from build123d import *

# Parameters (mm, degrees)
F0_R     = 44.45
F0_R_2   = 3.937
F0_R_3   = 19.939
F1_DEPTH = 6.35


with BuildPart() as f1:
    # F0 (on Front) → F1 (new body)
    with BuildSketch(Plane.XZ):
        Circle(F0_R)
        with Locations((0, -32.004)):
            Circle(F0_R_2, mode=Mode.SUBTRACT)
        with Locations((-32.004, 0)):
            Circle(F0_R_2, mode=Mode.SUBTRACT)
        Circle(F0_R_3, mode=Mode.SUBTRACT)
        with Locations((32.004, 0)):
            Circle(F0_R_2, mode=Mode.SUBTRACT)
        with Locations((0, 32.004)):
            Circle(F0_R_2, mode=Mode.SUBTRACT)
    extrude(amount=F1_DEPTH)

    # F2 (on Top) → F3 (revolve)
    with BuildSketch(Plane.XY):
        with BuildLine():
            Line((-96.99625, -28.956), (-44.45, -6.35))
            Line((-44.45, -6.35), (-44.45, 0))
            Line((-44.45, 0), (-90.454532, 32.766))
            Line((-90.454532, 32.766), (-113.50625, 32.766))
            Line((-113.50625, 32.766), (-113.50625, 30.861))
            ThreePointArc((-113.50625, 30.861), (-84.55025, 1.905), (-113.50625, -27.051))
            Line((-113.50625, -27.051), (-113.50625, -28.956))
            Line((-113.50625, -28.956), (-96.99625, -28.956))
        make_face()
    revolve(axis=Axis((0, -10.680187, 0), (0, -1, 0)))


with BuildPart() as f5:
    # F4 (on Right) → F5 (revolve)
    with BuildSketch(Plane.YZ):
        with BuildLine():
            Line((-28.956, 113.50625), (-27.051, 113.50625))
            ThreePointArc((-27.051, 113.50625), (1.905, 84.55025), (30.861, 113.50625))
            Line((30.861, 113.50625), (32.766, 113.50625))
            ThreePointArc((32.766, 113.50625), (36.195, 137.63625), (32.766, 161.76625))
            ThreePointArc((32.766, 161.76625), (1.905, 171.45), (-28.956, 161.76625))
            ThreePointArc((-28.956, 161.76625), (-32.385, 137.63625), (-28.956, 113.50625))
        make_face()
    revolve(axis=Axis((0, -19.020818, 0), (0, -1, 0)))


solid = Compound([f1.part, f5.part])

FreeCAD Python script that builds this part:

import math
import FreeCAD as App
import Part
import Sketcher
Q = App.Units.Quantity

doc = App.newDocument("Part")
body = doc.addObject("PartDesign::Body", "Body")

sketch1 = body.newObject("Sketcher::SketchObject", "Sketch")
sketch1.AttachmentSupport = (doc.getObject("XZ_Plane"), [""])
sketch1.MapMode = "FlatFace"
sketch1.addGeometry(Part.Circle(App.Vector(0, 0, 0), App.Vector(0, 0, 1), 44.5), False)
sketch1.addGeometry(Part.Circle(App.Vector(0, -32, 0), App.Vector(0, 0, 1), 3.9), False)
sketch1.addGeometry(Part.Circle(App.Vector(0, 0, 0), App.Vector(0, 0, 1), 19.9), False)
sketch1.addGeometry(Part.Circle(App.Vector(-32, 0, 0), App.Vector(0, 0, 1), 3.9), False)
sketch1.addGeometry(Part.Circle(App.Vector(32, 0, 0), App.Vector(0, 0, 1), 3.9), False)
sketch1.addGeometry(Part.Circle(App.Vector(0, 32, 0), App.Vector(0, 0, 1), 3.9), False)
sketch1.addConstraint(Sketcher.Constraint("Coincident", 0, 3, -1, 1))
sketch1.addConstraint(Sketcher.Constraint("Coincident", 2, 3, -1, 1))
sketch1.addConstraint(Sketcher.Constraint("Equal", 1, 3))
sketch1.addConstraint(Sketcher.Constraint("Equal", 3, 4))
sketch1.addConstraint(Sketcher.Constraint("Equal", 4, 5))
sketch1.addConstraint(Sketcher.Constraint("Symmetric", 3, 3, 4, 3, -1, 1))
sketch1.addConstraint(Sketcher.Constraint("Symmetric", 1, 3, 5, 3, -1, 1))
sketch1.addConstraint(Sketcher.Constraint("PointOnObject", 1, 3, -2))
sketch1.addConstraint(Sketcher.Constraint("PointOnObject", 3, 3, -1))
sketch1.addConstraint(Sketcher.Constraint("Diameter", 0, Q("3.5 in")))
sketch1.addConstraint(Sketcher.Constraint("Diameter", 1, Q("0.31 in")))
sketch1.addConstraint(Sketcher.Constraint("Diameter", 2, Q("1.57 in")))
sketch1.addConstraint(Sketcher.Constraint("DistanceY", 1, 3, -1, 1, Q("1.26 in")))
sketch1.addConstraint(Sketcher.Constraint("DistanceX", 3, 3, -1, 1, Q("1.26 in")))
pad1 = body.newObject("PartDesign::Pad", "Pad")
pad1.Profile = sketch1
pad1.Length = Q("0.25 in")

sketch2 = body.newObject("Sketcher::SketchObject", "Sketch001")
sketch2.AttachmentSupport = (doc.getObject("XY_Plane"), [""])
sketch2.MapMode = "FlatFace"
sketch2.addGeometry(Part.LineSegment(App.Vector(-97, -29, 0), App.Vector(-44.5, -6.3, 0)), False)
sketch2.addGeometry(Part.LineSegment(App.Vector(-44.5, -6.3, 0), App.Vector(-44.5, 0, 0)), False)
sketch2.addGeometry(Part.LineSegment(App.Vector(-44.5, 0, 0), App.Vector(-90.5, 32.8, 0)), False)
sketch2.addGeometry(Part.LineSegment(App.Vector(-90.5, 32.8, 0), App.Vector(-113.5, 32.8, 0)), False)
sketch2.addGeometry(Part.LineSegment(App.Vector(-113.5, 32.8, 0), App.Vector(-113.5, 30.9, 0)), False)
sketch2.addGeometry(Part.ArcOfCircle(Part.Circle(App.Vector(-113.5, 1.9, 0), App.Vector(0, 0, 1), 29), math.radians(-90), math.radians(90)), False)
sketch2.addGeometry(Part.LineSegment(App.Vector(-113.5, -27.1, 0), App.Vector(-113.5, -29, 0)), False)
sketch2.addGeometry(Part.LineSegment(App.Vector(-113.5, -29, 0), App.Vector(-97, -29, 0)), False)
sketch2.addConstraint(Sketcher.Constraint("Coincident", 0, 2, 1, 1))
sketch2.addConstraint(Sketcher.Constraint("Coincident", 1, 2, 2, 1))
sketch2.addConstraint(Sketcher.Constraint("Coincident", 2, 2, 3, 1))
sketch2.addConstraint(Sketcher.Constraint("Coincident", 3, 2, 4, 1))
sketch2.addConstraint(Sketcher.Constraint("Coincident", 4, 2, 5, 2))
sketch2.addConstraint(Sketcher.Constraint("Coincident", 5, 1, 6, 1))
sketch2.addConstraint(Sketcher.Constraint("Coincident", 6, 2, 7, 1))
sketch2.addConstraint(Sketcher.Constraint("Coincident", 7, 2, 0, 1))
sketch2.addConstraint(Sketcher.Constraint("Vertical", 1))
sketch2.addConstraint(Sketcher.Constraint("Horizontal", 3))
sketch2.addConstraint(Sketcher.Constraint("Vertical", 4))
sketch2.addConstraint(Sketcher.Constraint("Vertical", 6))
sketch2.addConstraint(Sketcher.Constraint("Horizontal", 7))
sketch2.addConstraint(Sketcher.Constraint("PointOnObject", 1, 2, -1))
sketch2.addConstraint(Sketcher.Constraint("Vertical", 5, 3, 3, 2))
sketch2.addConstraint(Sketcher.Constraint("Vertical", 4, 2, 5, 1))
sketch2.addConstraint(Sketcher.Constraint("Equal", 4, 6))
sketch2.addConstraint(Sketcher.Constraint("Radius", 5, Q("1.14 in")))
sketch2.addConstraint(Sketcher.Constraint("DistanceX", 7, 1, 7, 2, Q("0.65 in")))
sketch2.addConstraint(Sketcher.Constraint("DistanceY", 1, 1, 1, 2, Q("0.25 in")))
sketch2.addConstraint(Sketcher.Constraint("DistanceY", 4, 2, 4, 1, Q("0.075 in")))
sketch2.addConstraint(Sketcher.Constraint("DistanceX", 0, 2, -1, 1, Q("1.75 in")))
sketch2.addConstraint(Sketcher.Constraint("DistanceY", -1, 1, 2, 2, Q("1.29 in")))
sketch2.addConstraint(Sketcher.Constraint("DistanceX", 5, 3, -1, 1, Q("4.46875 in")))
sketch2.addConstraint(Sketcher.Constraint("Distance", 2, Q("56.48033 mm")))
revolution = body.newObject("PartDesign::Revolution", "Revolution")
revolution.Profile = sketch2
revolution.ReferenceAxis = (sketch2, ["V_Axis"])
revolution.Angle = 360
body2 = doc.addObject("PartDesign::Body", "Body001")

sketch3 = body2.newObject("Sketcher::SketchObject", "Sketch002")
sketch3.AttachmentSupport = (doc.getObject("YZ_Plane001"), [""])
sketch3.MapMode = "FlatFace"
sketch3.addGeometry(Part.LineSegment(App.Vector(-29, 113.5, 0), App.Vector(-27.1, 113.5, 0)), False)
sketch3.addGeometry(Part.ArcOfCircle(Part.Circle(App.Vector(1.9, 113.5, 0), App.Vector(0, 0, 1), 29), math.radians(180), math.radians(360)), False)
sketch3.addGeometry(Part.LineSegment(App.Vector(30.9, 113.5, 0), App.Vector(32.8, 113.5, 0)), False)
sketch3.addGeometry(Part.ArcOfCircle(Part.Circle(App.Vector(-50.4, 137.6, 0), App.Vector(0, 0, 1), 86.6), math.radians(-16), math.radians(16)), False)
sketch3.addGeometry(Part.ArcOfCircle(Part.Circle(App.Vector(1.9, 117.4, 0), App.Vector(0, 0, 1), 54), math.radians(55), math.radians(125)), False)
sketch3.addGeometry(Part.ArcOfCircle(Part.Circle(App.Vector(54.2, 137.6, 0), App.Vector(0, 0, 1), 86.6), math.radians(164), math.radians(196)), False)
sketch3.addConstraint(Sketcher.Constraint("Coincident", 0, 2, 1, 1))
sketch3.addConstraint(Sketcher.Constraint("Coincident", 1, 2, 2, 1))
sketch3.addConstraint(Sketcher.Constraint("Coincident", 2, 2, 3, 1))
sketch3.addConstraint(Sketcher.Constraint("Coincident", 3, 2, 4, 1))
sketch3.addConstraint(Sketcher.Constraint("Coincident", 4, 2, 5, 1))
sketch3.addConstraint(Sketcher.Constraint("Coincident", 5, 2, 0, 1))
sketch3.addConstraint(Sketcher.Constraint("Horizontal", 0))
sketch3.addConstraint(Sketcher.Constraint("Horizontal", 2))
sketch3.addConstraint(Sketcher.Constraint("Equal", 3, 5))
sketch3.addConstraint(Sketcher.Constraint("Horizontal", 3, 3, 5, 3))
sketch3.addConstraint(Sketcher.Constraint("Horizontal", 1, 3, 0, 2))
sketch3.addConstraint(Sketcher.Constraint("Horizontal", 0, 2, 1, 2))
sketch3.addConstraint(Sketcher.Constraint("Horizontal", 3, 2, 4, 2))
sketch3.addConstraint(Sketcher.Constraint("Vertical", 1, 3, 4, 3))
sketch3.addConstraint(Sketcher.Constraint("Vertical", 2, 2, 3, 2))
sketch3.addConstraint(Sketcher.Constraint("Radius", 1, Q("1.14 in")))
sketch3.addConstraint(Sketcher.Constraint("DistanceY", 2, 2, 3, 2, Q("1.9 in")))
sketch3.addConstraint(Sketcher.Constraint("DistanceX", 0, 1, 0, 2, Q("0.075 in")))
sketch3.addConstraint(Sketcher.Constraint("DistanceX", -1, 1, 2, 2, Q("1.29 in")))
sketch3.addConstraint(Sketcher.Constraint("DistanceY", -1, 1, 1, 3, Q("4.46875 in")))
sketch3.addConstraint(Sketcher.Constraint("Radius", 3, Q("86.616352 mm")))
sketch3.addConstraint(Sketcher.Constraint("Radius", 4, Q("54.017108 mm")))
revolution2 = body2.newObject("PartDesign::Revolution", "Revolution001")
revolution2.Profile = sketch3
revolution2.ReferenceAxis = (sketch3, ["H_Axis"])
revolution2.Angle = 360

doc.recompute()
